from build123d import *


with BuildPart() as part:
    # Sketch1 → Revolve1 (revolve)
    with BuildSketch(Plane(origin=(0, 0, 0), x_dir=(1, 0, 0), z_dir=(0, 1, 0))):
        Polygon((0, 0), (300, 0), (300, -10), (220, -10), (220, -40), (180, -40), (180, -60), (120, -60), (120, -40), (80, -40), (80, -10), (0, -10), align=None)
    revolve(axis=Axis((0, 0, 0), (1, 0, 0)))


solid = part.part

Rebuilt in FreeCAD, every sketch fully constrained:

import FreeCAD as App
import Part
import Sketcher

V = App.Vector

doc = App.newDocument("Part")
body = doc.addObject("PartDesign::Body", "Body")

sketch1 = body.newObject("Sketcher::SketchObject", "Sketch")
sketch1.AttachmentSupport = (doc.getObject("XZ_Plane"), [""])
sketch1.MapMode = "FlatFace"
sketch1.addGeometry(Part.LineSegment(V(300, 0, 0), V(0, 0, 0)), False)
sketch1.addGeometry(Part.LineSegment(V(0, 0, 0), V(0, 10, 0)), False)
sketch1.addGeometry(Part.LineSegment(V(0, 10, 0), V(80, 10, 0)), False)
sketch1.addGeometry(Part.LineSegment(V(80, 10, 0), V(80, 40, 0)), False)
sketch1.addGeometry(Part.LineSegment(V(80, 40, 0), V(120, 40, 0)), False)
sketch1.addGeometry(Part.LineSegment(V(120, 40, 0), V(120, 60, 0)), False)
sketch1.addGeometry(Part.LineSegment(V(120, 60, 0), V(180, 60, 0)), False)
sketch1.addGeometry(Part.LineSegment(V(180, 60, 0), V(180, 40, 0)), False)
sketch1.addGeometry(Part.LineSegment(V(180, 40, 0), V(220, 40, 0)), False)
sketch1.addGeometry(Part.LineSegment(V(220, 40, 0), V(220, 10, 0)), False)
sketch1.addGeometry(Part.LineSegment(V(220, 10, 0), V(300, 10, 0)), False)
sketch1.addGeometry(Part.LineSegment(V(300, 10, 0), V(300, 0, 0)), False)
sketch1.addConstraint(Sketcher.Constraint("Coincident", 0, 2, 1, 1))
sketch1.addConstraint(Sketcher.Constraint("Coincident", 1, 2, 2, 1))
sketch1.addConstraint(Sketcher.Constraint("Coincident", 2, 2, 3, 1))
sketch1.addConstraint(Sketcher.Constraint("Coincident", 3, 2, 4, 1))
sketch1.addConstraint(Sketcher.Constraint("Coincident", 4, 2, 5, 1))
sketch1.addConstraint(Sketcher.Constraint("Coincident", 5, 2, 6, 1))
sketch1.addConstraint(Sketcher.Constraint("Coincident", 6, 2, 7, 1))
sketch1.addConstraint(Sketcher.Constraint("Coincident", 7, 2, 8, 1))
sketch1.addConstraint(Sketcher.Constraint("Coincident", 8, 2, 9, 1))
sketch1.addConstraint(Sketcher.Constraint("Coincident", 9, 2, 10, 1))
sketch1.addConstraint(Sketcher.Constraint("Coincident", 10, 2, 11, 1))
sketch1.addConstraint(Sketcher.Constraint("Coincident", 11, 2, 0, 1))
sketch1.addConstraint(Sketcher.Constraint("Horizontal", 0))
sketch1.addConstraint(Sketcher.Constraint("Vertical", 1))
sketch1.addConstraint(Sketcher.Constraint("Horizontal", 2))
sketch1.addConstraint(Sketcher.Constraint("Vertical", 3))
sketch1.addConstraint(Sketcher.Constraint("Horizontal", 4))
sketch1.addConstraint(Sketcher.Constraint("Vertical", 5))
sketch1.addConstraint(Sketcher.Constraint("Horizontal", 6))
sketch1.addConstraint(Sketcher.Constraint("Vertical", 7))
sketch1.addConstraint(Sketcher.Constraint("Horizontal", 8))
sketch1.addConstraint(Sketcher.Constraint("Vertical", 9))
sketch1.addConstraint(Sketcher.Constraint("Horizontal", 10))
sketch1.addConstraint(Sketcher.Constraint("Vertical", 11))
sketch1.addConstraint(Sketcher.Constraint("Coincident", 0, 2, -1, 1))
sketch1.addConstraint(Sketcher.Constraint("Horizontal", 4, 2, 7, 2))
sketch1.addConstraint(Sketcher.Constraint("Horizontal", 2, 2, 9, 2))
sketch1.addConstraint(Sketcher.Constraint("Equal", 4, 8))
sketch1.addConstraint(Sketcher.Constraint("Equal", 2, 10))
sketch1.addConstraint(Sketcher.Constraint("DistanceX", 0, 2, 0, 1, 300.0))
sketch1.addConstraint(Sketcher.Constraint("DistanceX", 2, 1, 2, 2, 80.0))
sketch1.addConstraint(Sketcher.Constraint("DistanceX", 4, 1, 4, 2, 40.0))
sketch1.addConstraint(Sketcher.Constraint("DistanceY", 1, 1, 1, 2, 10.0))
sketch1.addConstraint(Sketcher.Constraint("DistanceY", 3, 1, 3, 2, 30.0))
sketch1.addConstraint(Sketcher.Constraint("DistanceY", 5, 1, 5, 2, 20.0))
revolution = body.newObject("PartDesign::Revolution", "Revolution")
revolution.Profile = sketch1
revolution.ReferenceAxis = (sketch1, ["H_Axis"])
revolution.Angle = 360

doc.recompute()
